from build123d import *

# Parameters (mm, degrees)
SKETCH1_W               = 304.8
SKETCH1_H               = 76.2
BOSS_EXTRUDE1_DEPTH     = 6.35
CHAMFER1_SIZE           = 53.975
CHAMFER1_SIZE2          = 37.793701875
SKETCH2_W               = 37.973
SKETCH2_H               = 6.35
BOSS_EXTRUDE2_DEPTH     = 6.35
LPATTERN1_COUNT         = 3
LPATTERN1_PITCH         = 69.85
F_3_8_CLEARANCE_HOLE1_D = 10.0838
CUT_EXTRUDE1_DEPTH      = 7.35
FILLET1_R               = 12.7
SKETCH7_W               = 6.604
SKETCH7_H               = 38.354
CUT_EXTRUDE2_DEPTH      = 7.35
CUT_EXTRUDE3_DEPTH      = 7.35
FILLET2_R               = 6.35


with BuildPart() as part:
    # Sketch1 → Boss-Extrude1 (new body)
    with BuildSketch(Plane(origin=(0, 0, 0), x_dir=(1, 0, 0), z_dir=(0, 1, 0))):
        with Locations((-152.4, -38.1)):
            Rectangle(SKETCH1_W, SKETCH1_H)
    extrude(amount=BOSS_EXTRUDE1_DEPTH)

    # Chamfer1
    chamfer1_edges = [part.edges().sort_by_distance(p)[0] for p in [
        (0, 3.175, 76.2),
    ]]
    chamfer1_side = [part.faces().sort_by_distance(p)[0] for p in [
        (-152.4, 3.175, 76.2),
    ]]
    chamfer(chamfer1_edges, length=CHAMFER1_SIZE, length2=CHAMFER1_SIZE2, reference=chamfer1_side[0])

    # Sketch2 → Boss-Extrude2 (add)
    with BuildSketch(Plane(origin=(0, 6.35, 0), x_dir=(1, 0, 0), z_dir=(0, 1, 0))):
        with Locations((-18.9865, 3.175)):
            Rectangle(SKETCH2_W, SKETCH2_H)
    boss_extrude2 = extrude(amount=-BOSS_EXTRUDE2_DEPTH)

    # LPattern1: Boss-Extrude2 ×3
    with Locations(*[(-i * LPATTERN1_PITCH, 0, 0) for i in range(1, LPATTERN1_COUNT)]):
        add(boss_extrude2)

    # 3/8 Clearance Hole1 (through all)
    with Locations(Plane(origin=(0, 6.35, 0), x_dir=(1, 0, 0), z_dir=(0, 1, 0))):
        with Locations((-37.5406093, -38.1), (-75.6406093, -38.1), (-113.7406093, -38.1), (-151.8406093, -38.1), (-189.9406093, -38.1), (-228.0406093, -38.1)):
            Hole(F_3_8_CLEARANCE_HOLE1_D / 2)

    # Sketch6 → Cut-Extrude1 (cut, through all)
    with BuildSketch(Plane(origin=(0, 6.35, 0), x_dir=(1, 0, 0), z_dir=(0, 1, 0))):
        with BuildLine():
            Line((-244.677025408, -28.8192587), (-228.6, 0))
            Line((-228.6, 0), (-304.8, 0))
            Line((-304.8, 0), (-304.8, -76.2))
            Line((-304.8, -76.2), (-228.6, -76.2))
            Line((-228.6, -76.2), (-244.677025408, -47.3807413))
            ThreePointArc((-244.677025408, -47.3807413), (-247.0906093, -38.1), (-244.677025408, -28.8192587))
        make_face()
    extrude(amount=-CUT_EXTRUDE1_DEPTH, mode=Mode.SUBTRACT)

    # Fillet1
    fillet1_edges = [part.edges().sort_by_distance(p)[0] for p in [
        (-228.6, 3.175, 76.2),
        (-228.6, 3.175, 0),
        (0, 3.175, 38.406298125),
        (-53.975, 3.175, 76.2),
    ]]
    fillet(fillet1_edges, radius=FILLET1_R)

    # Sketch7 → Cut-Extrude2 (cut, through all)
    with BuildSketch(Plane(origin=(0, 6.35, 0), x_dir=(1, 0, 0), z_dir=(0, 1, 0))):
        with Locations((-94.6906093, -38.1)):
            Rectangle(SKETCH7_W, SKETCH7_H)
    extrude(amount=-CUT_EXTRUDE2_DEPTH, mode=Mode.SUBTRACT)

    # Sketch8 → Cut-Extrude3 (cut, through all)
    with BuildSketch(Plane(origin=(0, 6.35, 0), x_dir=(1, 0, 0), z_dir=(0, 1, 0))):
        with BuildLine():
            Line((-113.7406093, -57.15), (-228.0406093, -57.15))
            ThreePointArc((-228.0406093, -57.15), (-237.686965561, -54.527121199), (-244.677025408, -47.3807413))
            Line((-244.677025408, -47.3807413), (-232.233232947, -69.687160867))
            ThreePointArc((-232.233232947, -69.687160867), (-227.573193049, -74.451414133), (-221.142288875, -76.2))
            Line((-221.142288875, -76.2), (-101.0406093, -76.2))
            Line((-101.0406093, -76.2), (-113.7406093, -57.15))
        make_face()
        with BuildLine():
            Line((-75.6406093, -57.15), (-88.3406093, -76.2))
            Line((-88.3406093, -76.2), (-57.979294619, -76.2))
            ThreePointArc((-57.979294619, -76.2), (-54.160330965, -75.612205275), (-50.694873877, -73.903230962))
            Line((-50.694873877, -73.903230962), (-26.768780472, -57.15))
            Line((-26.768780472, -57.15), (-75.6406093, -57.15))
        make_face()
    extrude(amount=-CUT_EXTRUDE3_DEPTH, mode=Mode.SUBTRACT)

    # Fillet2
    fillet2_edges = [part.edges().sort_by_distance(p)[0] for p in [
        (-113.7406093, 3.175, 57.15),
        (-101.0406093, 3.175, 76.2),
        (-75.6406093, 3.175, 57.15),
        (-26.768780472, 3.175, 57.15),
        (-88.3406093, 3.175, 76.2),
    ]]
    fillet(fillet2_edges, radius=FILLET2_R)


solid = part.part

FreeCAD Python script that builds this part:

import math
import FreeCAD as App
import Part
import Sketcher
from FreeCAD import Vector
Q = App.Units.Quantity


def edges_at(feature, points):
    """Names of the edges that pass closest to the given points."""
    edges = feature.Shape.Edges
    near = lambda p: min(range(len(edges)), key=lambda i: edges[i].distToShape(Part.Vertex(*p))[0])
    return sorted({f"Edge{near(p) + 1}" for p in points})


def add_polygon(sketch, points):
    """Adds a closed chain of lines whose ends are joined by coincident constraints."""
    first, n = sketch.GeometryCount, len(points)
    for a, b in zip(points, points[1:] + points[:1]):
        sketch.addGeometry(Part.LineSegment(App.Vector(*a, 0), App.Vector(*b, 0)), False)
    for i in range(n):
        sketch.addConstraint(Sketcher.Constraint("Coincident", first + i, 2, first + (i + 1) % n, 1))

doc = App.newDocument("Part")
params = doc.addObject("Spreadsheet::Sheet", "Params")
for row, (alias, value) in enumerate([
    ("sketch1_width", "12 in"),
    ("sketch1_height", "3 in"),
    ("pad1_length", "0.25 in"),
    ("chamfer_size", "2.125 in"),
    ("chamfer_size2", "37.793702 mm"),
    ("sketch2_height", "0.25 in"),
    ("sketch2_width", "1.495 in"),
    ("pad2_length", "0.25 in"),
    ("linearpattern_pitch", "2.75 in"),
    ("sketch3_diameter", "0.397 in"),
    ("hole_diameter", "0.397 in"),
    ("sketch4_width", "3 in"),
    ("sketch4_width2", "3 in"),
    ("sketch4_height", "3 in"),
    ("sketch4_radius", "0.75 in"),
    ("fillet_radius", "0.5 in"),
    ("sketch5_width", "0.26 in"),
    ("sketch5_height", "1.51 in"),
    ("sketch6_radius", "0.5 in"),
    ("sketch6_radius2", "0.75 in"),
    ("sketch6_width", "4.5 in"),
    ("fillet2_radius", "0.25 in"),
], start=1):
    params.set(f"A{row}", alias)
    params.set(f"B{row}", "=" + value)
    params.setAlias(f"B{row}", alias)

body = doc.addObject("PartDesign::Body", "Body")

# Sketch on XZ plane
sketch1 = body.newObject("Sketcher::SketchObject", "Sketch")
sketch1.AttachmentSupport = (doc.getObject("XZ_Plane"), [""])
sketch1.MapMode = "FlatFace"
add_polygon(sketch1, [(-304.8, 0), (-304.8, 76.2), (0, 76.2), (0, 0)])  # lines 0-3
sketch1.addConstraint(Sketcher.Constraint("Vertical", 0))
sketch1.addConstraint(Sketcher.Constraint("Horizontal", 1))
sketch1.addConstraint(Sketcher.Constraint("Vertical", 2))
sketch1.addConstraint(Sketcher.Constraint("Horizontal", 3))
sketch1.addConstraint(Sketcher.Constraint("Coincident", 2, 2, -1, 1))
sketch1.addConstraint(Sketcher.Constraint("DistanceX", 1, 1, 1, 2, Q("12 in")))
sketch1.addConstraint(Sketcher.Constraint("DistanceY", 0, 1, 0, 2, Q("3 in")))
sketch1.setExpression("Constraints[9]", "Params.sketch1_width")
sketch1.setExpression("Constraints[10]", "Params.sketch1_height")
pad1 = body.newObject("PartDesign::Pad", "Pad")
pad1.Profile = sketch1
pad1.setExpression("Length", "Params.pad1_length")
pad1.Reversed = True
doc.recompute()

chamfer = body.newObject("PartDesign::Chamfer", "Chamfer")
chamfer.Base = (pad1, edges_at(pad1, [(0, 3.175, 76.2)]))
chamfer.ChamferType = "Two distances"
chamfer.setExpression("Size", "Params.chamfer_size")
chamfer.setExpression("Size2", "Params.chamfer_size2")

# Sketch on XZ plane
sketch2 = body.newObject("Sketcher::SketchObject", "Sketch001")
sketch2.AttachmentSupport = (doc.getObject("XZ_Plane"), [""])
sketch2.MapMode = "FlatFace"
sketch2.AttachmentOffset = App.Placement(Vector(0, 0, -0.25 * 25.4), App.Rotation())
add_polygon(sketch2, [(-37.973, -6.35), (-37.973, 0), (0, 0), (0, -6.35)])  # lines 0-3
sketch2.addConstraint(Sketcher.Constraint("Vertical", 0))
sketch2.addConstraint(Sketcher.Constraint("Horizontal", 1))
sketch2.addConstraint(Sketcher.Constraint("Vertical", 2))
sketch2.addConstraint(Sketcher.Constraint("Horizontal", 3))
sketch2.addConstraint(Sketcher.Constraint("Coincident", 1, 2, -1, 1))
sketch2.addConstraint(Sketcher.Constraint("DistanceY", 0, 1, 0, 2, Q("0.25 in")))
sketch2.addConstraint(Sketcher.Constraint("DistanceX", 1, 1, 1, 2, Q("1.495 in")))
sketch2.setExpression("Constraints[9]", "Params.sketch2_height")
sketch2.setExpression("Constraints[10]", "Params.sketch2_width")
pad2 = body.newObject("PartDesign::Pad", "Pad001")
pad2.Profile = sketch2
pad2.setExpression("Length", "Params.pad2_length")
doc.recompute()

linearpattern = body.newObject("PartDesign::LinearPattern", "LinearPattern")
linearpattern.Originals = [pad2]
linearpattern.Direction = (doc.getObject("X_Axis"), [""])
linearpattern.Mode = "offset"
linearpattern.setExpression("Offset", "Params.linearpattern_pitch")
linearpattern.Occurrences = 3
linearpattern.Reversed = True
body.Tip = linearpattern

# Sketch on XZ plane
sketch3 = body.newObject("Sketcher::SketchObject", "Sketch002")
sketch3.AttachmentSupport = (doc.getObject("XZ_Plane"), [""])
sketch3.MapMode = "FlatFace"
sketch3.AttachmentOffset = App.Placement(Vector(0, 0, -0.25 * 25.4), App.Rotation())
sketch3.addGeometry(Part.Circle(Vector(-37.540609, 38.1, 0), Vector(0, 0, 1), 5.0419), False)
sketch3.addGeometry(Part.Circle(Vector(-75.640609, 38.1, 0), Vector(0, 0, 1), 5.0419), False)
sketch3.addGeometry(Part.Circle(Vector(-113.740609, 38.1, 0), Vector(0, 0, 1), 5.0419), False)
sketch3.addGeometry(Part.Circle(Vector(-151.840609, 38.1, 0), Vector(0, 0, 1), 5.0419), False)
sketch3.addGeometry(Part.Circle(Vector(-189.940609, 38.1, 0), Vector(0, 0, 1), 5.0419), False)
sketch3.addGeometry(Part.Circle(Vector(-228.040609, 38.1, 0), Vector(0, 0, 1), 5.0419), False)
sketch3.addConstraint(Sketcher.Constraint("Equal", 0, 1))
sketch3.addConstraint(Sketcher.Constraint("Equal", 1, 2))
sketch3.addConstraint(Sketcher.Constraint("Equal", 2, 3))
sketch3.addConstraint(Sketcher.Constraint("Equal", 3, 4))
sketch3.addConstraint(Sketcher.Constraint("Equal", 4, 5))
sketch3.addConstraint(Sketcher.Constraint("Horizontal", 0, 3, 1, 3))
sketch3.addConstraint(Sketcher.Constraint("Horizontal", 1, 3, 2, 3))
sketch3.addConstraint(Sketcher.Constraint("Horizontal", 2, 3, 3, 3))
sketch3.addConstraint(Sketcher.Constraint("Horizontal", 3, 3, 4, 3))
sketch3.addConstraint(Sketcher.Constraint("Horizontal", 4, 3, 5, 3))
sketch3.addConstraint(Sketcher.Constraint("Diameter", 0, Q("0.397 in")))
sketch3.addConstraint(Sketcher.Constraint("DistanceX", 2, 3, 0, 3, Q("3 in")))
sketch3.addConstraint(Sketcher.Constraint("DistanceX", 3, 3, 1, 3, Q("3 in")))
sketch3.addConstraint(Sketcher.Constraint("DistanceX", 4, 3, 2, 3, Q("3 in")))
sketch3.addConstraint(Sketcher.Constraint("DistanceX", 5, 3, 3, 3, Q("3 in")))
sketch3.addConstraint(Sketcher.Constraint("DistanceY", -1, 1, 0, 3, Q("1.5 in")))
sketch3.addConstraint(Sketcher.Constraint("DistanceX", 1, 3, 0, 3, Q("1.5 in")))
sketch3.addConstraint(Sketcher.Constraint("DistanceX", 0, 3, -1, 1, Q("37.540609 mm")))
sketch3.setExpression("Constraints[10]", "Params.sketch3_diameter")
doc.recompute()
hole = body.newObject("PartDesign::Hole", "Hole")
hole.Profile = sketch3
hole.ThreadType = "None"
hole.setExpression("Diameter", "Params.hole_diameter")
hole.DepthType = "ThroughAll"
hole.Reversed = True

# Sketch on XZ plane
sketch4 = body.newObject("Sketcher::SketchObject", "Sketch003")
sketch4.AttachmentSupport = (doc.getObject("XZ_Plane"), [""])
sketch4.MapMode = "FlatFace"
sketch4.AttachmentOffset = App.Placement(Vector(0, 0, -0.25 * 25.4), App.Rotation())
sketch4.addGeometry(Part.LineSegment(Vector(-244.677025, 28.819259, 0), Vector(-228.6, 0, 0)), False)
sketch4.addGeometry(Part.LineSegment(Vector(-228.6, 0, 0), Vector(-304.8, 0, 0)), False)
sketch4.addGeometry(Part.LineSegment(Vector(-304.8, 0, 0), Vector(-304.8, 76.2, 0)), False)
sketch4.addGeometry(Part.LineSegment(Vector(-304.8, 76.2, 0), Vector(-228.6, 76.2, 0)), False)
sketch4.addGeometry(Part.LineSegment(Vector(-228.6, 76.2, 0), Vector(-244.677025, 47.380741, 0)), False)
sketch4.addGeometry(Part.ArcOfCircle(Part.Circle(Vector(-228.040609, 38.1, 0), Vector(0, 0, 1), 19.05), math.radians(150.844731), math.radians(209.155269)), False)
sketch4.addConstraint(Sketcher.Constraint("Coincident", 0, 2, 1, 1))
sketch4.addConstraint(Sketcher.Constraint("Coincident", 1, 2, 2, 1))
sketch4.addConstraint(Sketcher.Constraint("Coincident", 2, 2, 3, 1))
sketch4.addConstraint(Sketcher.Constraint("Coincident", 3, 2, 4, 1))
sketch4.addConstraint(Sketcher.Constraint("Coincident", 4, 2, 5, 1))
sketch4.addConstraint(Sketcher.Constraint("Coincident", 5, 2, 0, 1))
sketch4.addConstraint(Sketcher.Constraint("Horizontal", 1))
sketch4.addConstraint(Sketcher.Constraint("Vertical", 2))
sketch4.addConstraint(Sketcher.Constraint("Horizontal", 3))
sketch4.addConstraint(Sketcher.Constraint("PointOnObject", 0, 2, -1))
sketch4.addConstraint(Sketcher.Constraint("DistanceX", 1, 2, 1, 1, Q("3 in")))
sketch4.addConstraint(Sketcher.Constraint("DistanceX", 3, 1, 3, 2, Q("3 in")))
sketch4.addConstraint(Sketcher.Constraint("DistanceY", 2, 1, 2, 2, Q("3 in")))
sketch4.addConstraint(Sketcher.Constraint("Radius", 5, Q("0.75 in")))
sketch4.addConstraint(Sketcher.Constraint("DistanceX", 0, 2, -1, 1, Q("9 in")))
sketch4.addConstraint(Sketcher.Constraint("DistanceY", -1, 1, 5, 3, Q("1.5 in")))
sketch4.addConstraint(Sketcher.Constraint("Distance", 0, Q("33.000309 mm")))
sketch4.addConstraint(Sketcher.Constraint("Distance", 4, Q("33.000309 mm")))
sketch4.addConstraint(Sketcher.Constraint("DistanceX", 5, 3, -1, 1, Q("228.040609 mm")))
sketch4.setExpression("Constraints[10]", "Params.sketch4_width")
sketch4.setExpression("Constraints[11]", "Params.sketch4_width2")
sketch4.setExpression("Constraints[12]", "Params.sketch4_height")
sketch4.setExpression("Constraints[13]", "Params.sketch4_radius")
pocket1 = body.newObject("PartDesign::Pocket", "Pocket")
pocket1.Profile = sketch4
pocket1.Type = "ThroughAll"
pocket1.Reversed = True
doc.recompute()

fillet = body.newObject("PartDesign::Fillet", "Fillet")
fillet.Base = (pocket1, edges_at(pocket1, [
    (-228.6, 3.175, 76.2),
    (-228.6, 3.175, 0),
    (0, 3.175, 38.406),
    (-53.975, 3.175, 76.2),
]))
fillet.setExpression("Radius", "Params.fillet_radius")

# Sketch on XZ plane
sketch5 = body.newObject("Sketcher::SketchObject", "Sketch004")
sketch5.AttachmentSupport = (doc.getObject("XZ_Plane"), [""])
sketch5.MapMode = "FlatFace"
sketch5.AttachmentOffset = App.Placement(Vector(0, 0, -0.25 * 25.4), App.Rotation())
add_polygon(sketch5, [(-97.992609, 18.923), (-97.992609, 57.277), (-91.388609, 57.277), (-91.388609, 18.923)])  # lines 0-3
sketch5.addConstraint(Sketcher.Constraint("Vertical", 0))
sketch5.addConstraint(Sketcher.Constraint("Horizontal", 1))
sketch5.addConstraint(Sketcher.Constraint("Vertical", 2))
sketch5.addConstraint(Sketcher.Constraint("Horizontal", 3))
sketch5.addConstraint(Sketcher.Constraint("DistanceX", 1, 1, 1, 2, Q("0.26 in")))
sketch5.addConstraint(Sketcher.Constraint("DistanceY", 0, 1, 0, 2, Q("1.51 in")))
sketch5.addConstraint(Sketcher.Constraint("DistanceY", -1, 1, 0, 2, Q("2.255 in")))
sketch5.addConstraint(Sketcher.Constraint("DistanceX", 0, 2, -1, 1, Q("97.992609 mm")))
sketch5.setExpression("Constraints[8]", "Params.sketch5_width")
sketch5.setExpression("Constraints[9]", "Params.sketch5_height")
pocket2 = body.newObject("PartDesign::Pocket", "Pocket001")
pocket2.Profile = sketch5
pocket2.Type = "ThroughAll"
pocket2.Reversed = True

# Sketch on XZ plane
sketch6 = body.newObject("Sketcher::SketchObject", "Sketch005")
sketch6.AttachmentSupport = (doc.getObject("XZ_Plane"), [""])
sketch6.MapMode = "FlatFace"
sketch6.AttachmentOffset = App.Placement(Vector(0, 0, -0.25 * 25.4), App.Rotation())
sketch6.addGeometry(Part.LineSegment(Vector(-113.740609, 57.15, 0), Vector(-228.040609, 57.15, 0)), False)
sketch6.addGeometry(Part.ArcOfCircle(Part.Circle(Vector(-228.040609, 38.1, 0), Vector(0, 0, 1), 19.05), math.radians(90), math.radians(150.844731)), False)
sketch6.addGeometry(Part.LineSegment(Vector(-244.677025, 47.380741, 0), Vector(-232.233233, 69.687161, 0)), False)
sketch6.addGeometry(Part.ArcOfCircle(Part.Circle(Vector(-221.142289, 63.5, 0), Vector(0, 0, 1), 12.7), math.radians(90), math.radians(150.844731)), False)
sketch6.addGeometry(Part.LineSegment(Vector(-221.142289, 76.2, 0), Vector(-101.040609, 76.2, 0)), False)
sketch6.addGeometry(Part.LineSegment(Vector(-101.040609, 76.2, 0), Vector(-113.740609, 57.15, 0)), False)
sketch6.addGeometry(Part.LineSegment(Vector(-75.640609, 57.15, 0), Vector(-88.340609, 76.2, 0)), False)
sketch6.addGeometry(Part.LineSegment(Vector(-88.340609, 76.2, 0), Vector(-57.979295, 76.2, 0)), False)
sketch6.addGeometry(Part.ArcOfCircle(Part.Circle(Vector(-57.979295, 63.5, 0), Vector(0, 0, 1), 12.7), math.radians(55), math.radians(90)), False)
sketch6.addGeometry(Part.LineSegment(Vector(-50.694874, 73.903231, 0), Vector(-26.76878, 57.15, 0)), False)
sketch6.addGeometry(Part.LineSegment(Vector(-26.76878, 57.15, 0), Vector(-75.640609, 57.15, 0)), False)
sketch6.addConstraint(Sketcher.Constraint("Tangent", 0, 2, 1, 1))
sketch6.addConstraint(Sketcher.Constraint("Tangent", 1, 2, 2, 1))
sketch6.addConstraint(Sketcher.Constraint("Tangent", 2, 2, 3, 2))
sketch6.addConstraint(Sketcher.Constraint("Tangent", 3, 1, 4, 1))
sketch6.addConstraint(Sketcher.Constraint("Coincident", 4, 2, 5, 1))
sketch6.addConstraint(Sketcher.Constraint("Coincident", 5, 2, 0, 1))
sketch6.addConstraint(Sketcher.Constraint("Coincident", 6, 2, 7, 1))
sketch6.addConstraint(Sketcher.Constraint("Tangent", 7, 2, 8, 2))
sketch6.addConstraint(Sketcher.Constraint("Tangent", 8, 1, 9, 1))
sketch6.addConstraint(Sketcher.Constraint("Coincident", 9, 2, 10, 1))
sketch6.addConstraint(Sketcher.Constraint("Coincident", 10, 2, 6, 1))
sketch6.addConstraint(Sketcher.Constraint("Horizontal", 0))
sketch6.addConstraint(Sketcher.Constraint("Horizontal", 4))
sketch6.addConstraint(Sketcher.Constraint("Horizontal", 7))
sketch6.addConstraint(Sketcher.Constraint("Horizontal", 10))
sketch6.addConstraint(Sketcher.Constraint("Equal", 3, 8))
sketch6.addConstraint(Sketcher.Constraint("Horizontal", 3, 3, 8, 3))
sketch6.addConstraint(Sketcher.Constraint("Horizontal", 5, 2, 9, 2))
sketch6.addConstraint(Sketcher.Constraint("Equal", 5, 6))
sketch6.addConstraint(Sketcher.Constraint("Radius", 3, Q("0.5 in")))
sketch6.addConstraint(Sketcher.Constraint("Radius", 1, Q("0.75 in")))
sketch6.addConstraint(Sketcher.Constraint("DistanceX", 0, 2, 0, 1, Q("4.5 in")))
sketch6.addConstraint(Sketcher.Constraint("DistanceY", -1, 1, 3, 1, Q("3 in")))
sketch6.addConstraint(Sketcher.Constraint("Angle", 9, Q("-35 deg")))
sketch6.addConstraint(Sketcher.Constraint("DistanceY", 1, 3, 3, 3, Q("1 in")))
sketch6.addConstraint(Sketcher.Constraint("DistanceX", 0, 2, 4, 2, Q("5 in")))
sketch6.addConstraint(Sketcher.Constraint("DistanceX", 5, 2, 6, 2, Q("1 in")))
sketch6.addConstraint(Sketcher.Constraint("Distance", 2, Q("25.542598 mm")))
sketch6.addConstraint(Sketcher.Constraint("DistanceX", 10, 2, 10, 1, Q("48.871829 mm")))
sketch6.addConstraint(Sketcher.Constraint("DistanceX", 1, 3, -1, 1, Q("228.040609 mm")))
sketch6.setExpression("Constraints[19]", "Params.sketch6_radius")
sketch6.setExpression("Constraints[20]", "Params.sketch6_radius2")
sketch6.setExpression("Constraints[21]", "Params.sketch6_width")
pocket3 = body.newObject("PartDesign::Pocket", "Pocket002")
pocket3.Profile = sketch6
pocket3.Type = "ThroughAll"
pocket3.Reversed = True
doc.recompute()

fillet2 = body.newObject("PartDesign::Fillet", "Fillet001")
fillet2.Base = (pocket3, edges_at(pocket3, [
    (-113.741, 3.175, 57.15),
    (-101.041, 3.175, 76.2),
    (-75.641, 3.175, 57.15),
    (-26.769, 3.175, 57.15),
    (-88.341, 3.175, 76.2),
]))
fillet2.setExpression("Radius", "Params.fillet2_radius")

doc.recompute()
